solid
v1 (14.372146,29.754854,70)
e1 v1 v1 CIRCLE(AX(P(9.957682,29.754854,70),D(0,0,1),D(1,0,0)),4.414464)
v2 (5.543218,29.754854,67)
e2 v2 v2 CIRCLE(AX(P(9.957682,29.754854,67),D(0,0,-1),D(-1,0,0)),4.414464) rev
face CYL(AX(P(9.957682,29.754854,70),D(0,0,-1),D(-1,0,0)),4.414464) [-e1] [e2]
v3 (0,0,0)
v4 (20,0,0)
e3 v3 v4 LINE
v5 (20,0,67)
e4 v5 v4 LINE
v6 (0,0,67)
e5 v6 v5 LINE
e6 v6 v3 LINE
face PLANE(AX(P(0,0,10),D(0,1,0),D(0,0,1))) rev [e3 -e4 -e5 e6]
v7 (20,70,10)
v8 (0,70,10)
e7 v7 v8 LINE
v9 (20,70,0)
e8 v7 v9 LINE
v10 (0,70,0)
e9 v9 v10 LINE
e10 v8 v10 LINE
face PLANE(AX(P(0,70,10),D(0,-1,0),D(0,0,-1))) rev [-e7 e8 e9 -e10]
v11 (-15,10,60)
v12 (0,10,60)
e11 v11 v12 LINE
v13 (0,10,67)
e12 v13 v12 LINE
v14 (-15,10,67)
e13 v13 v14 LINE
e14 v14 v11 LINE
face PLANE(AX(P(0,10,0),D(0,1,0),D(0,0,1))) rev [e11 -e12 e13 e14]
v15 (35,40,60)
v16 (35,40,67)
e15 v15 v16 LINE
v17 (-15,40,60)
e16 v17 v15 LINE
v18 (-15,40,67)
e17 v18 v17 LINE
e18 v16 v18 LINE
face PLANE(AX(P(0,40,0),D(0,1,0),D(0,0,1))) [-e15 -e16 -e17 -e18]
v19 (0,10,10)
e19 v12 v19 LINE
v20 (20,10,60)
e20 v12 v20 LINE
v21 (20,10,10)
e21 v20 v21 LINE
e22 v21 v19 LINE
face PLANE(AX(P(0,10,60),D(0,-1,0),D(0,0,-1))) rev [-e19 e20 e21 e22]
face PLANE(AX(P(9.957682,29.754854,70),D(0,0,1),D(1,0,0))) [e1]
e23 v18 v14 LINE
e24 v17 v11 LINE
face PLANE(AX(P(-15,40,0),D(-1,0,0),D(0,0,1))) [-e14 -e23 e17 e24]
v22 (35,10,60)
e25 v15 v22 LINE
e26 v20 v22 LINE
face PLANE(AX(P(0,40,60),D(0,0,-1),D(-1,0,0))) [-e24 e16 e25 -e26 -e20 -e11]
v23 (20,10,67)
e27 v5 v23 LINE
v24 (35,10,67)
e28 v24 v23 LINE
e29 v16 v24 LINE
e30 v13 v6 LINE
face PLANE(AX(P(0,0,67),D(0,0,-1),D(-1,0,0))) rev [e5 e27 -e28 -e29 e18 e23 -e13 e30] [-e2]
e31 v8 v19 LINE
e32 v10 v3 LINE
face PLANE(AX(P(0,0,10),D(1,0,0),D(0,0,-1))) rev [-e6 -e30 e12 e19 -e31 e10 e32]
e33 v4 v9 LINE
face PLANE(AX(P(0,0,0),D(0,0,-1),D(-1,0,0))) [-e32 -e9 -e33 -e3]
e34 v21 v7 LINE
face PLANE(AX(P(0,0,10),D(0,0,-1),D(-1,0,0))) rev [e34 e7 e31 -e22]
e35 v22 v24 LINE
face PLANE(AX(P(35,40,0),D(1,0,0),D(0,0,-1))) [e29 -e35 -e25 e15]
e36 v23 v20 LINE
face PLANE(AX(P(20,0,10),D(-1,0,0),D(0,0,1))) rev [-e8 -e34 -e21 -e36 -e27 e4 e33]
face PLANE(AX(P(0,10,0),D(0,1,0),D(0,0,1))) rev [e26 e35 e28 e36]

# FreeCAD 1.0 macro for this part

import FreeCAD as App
import Part
import Sketcher
Q = App.Units.Quantity

doc = App.newDocument("Part")
body = doc.addObject("PartDesign::Body", "Body")

# Sketch on XY plane
sketch1 = body.newObject("Sketcher::SketchObject", "Sketch")
sketch1.AttachmentSupport = (doc.getObject("XY_Plane"), [""])
sketch1.MapMode = "FlatFace"
sketch1.addGeometry([
    Part.LineSegment(App.Vector(0, 70, 0), App.Vector(0, 0, 0)),
    Part.LineSegment(App.Vector(0, 0, 0), App.Vector(20, 0, 0)),
    Part.LineSegment(App.Vector(20, 0, 0), App.Vector(20, 70, 0)),
    Part.LineSegment(App.Vector(20, 70, 0), App.Vector(0, 70, 0)),
], False)
sketch1.addConstraint([
    Sketcher.Constraint("Coincident", 0, 2, 1, 1),
    Sketcher.Constraint("Coincident", 1, 2, 2, 1),
    Sketcher.Constraint("Coincident", 2, 2, 3, 1),
    Sketcher.Constraint("Coincident", 3, 2, 0, 1),
    Sketcher.Constraint("Vertical", 0),
    Sketcher.Constraint("Horizontal", 1),
    Sketcher.Constraint("Vertical", 2),
    Sketcher.Constraint("Horizontal", 3),
    Sketcher.Constraint("Coincident", 0, 2, -1, 1),
    Sketcher.Constraint("DistanceX", 1, 1, 1, 2, Q("20 mm")),
    Sketcher.Constraint("DistanceY", 0, 2, 0, 1, Q("70 mm")),
])
pad1 = body.newObject("PartDesign::Pad", "Pad")
pad1.Profile = sketch1
pad1.Length = 10

# Sketch on XY plane
sketch2 = body.newObject("Sketcher::SketchObject", "Sketch001")
sketch2.AttachmentSupport = (doc.getObject("XY_Plane"), [""])
sketch2.MapMode = "FlatFace"
sketch2.AttachmentOffset = App.Placement(App.Vector(0, 0, 10), App.Rotation())
sketch2.addGeometry([
    Part.LineSegment(App.Vector(0, 10, 0), App.Vector(0, 0, 0)),
    Part.LineSegment(App.Vector(0, 0, 0), App.Vector(20, 0, 0)),
    Part.LineSegment(App.Vector(20, 0, 0), App.Vector(20, 10, 0)),
    Part.LineSegment(App.Vector(20, 10, 0), App.Vector(0, 10, 0)),
], False)
sketch2.addConstraint([
    Sketcher.Constraint("Coincident", 0, 2, 1, 1),
    Sketcher.Constraint("Coincident", 1, 2, 2, 1),
    Sketcher.Constraint("Coincident", 2, 2, 3, 1),
    Sketcher.Constraint("Coincident", 3, 2, 0, 1),
    Sketcher.Constraint("Vertical", 0),
    Sketcher.Constraint("Horizontal", 1),
    Sketcher.Constraint("Vertical", 2),
    Sketcher.Constraint("Horizontal", 3),
    Sketcher.Constraint("Coincident", 0, 2, -1, 1),
    Sketcher.Constraint("DistanceX", 1, 1, 1, 2, Q("20 mm")),
    Sketcher.Constraint("DistanceY", 0, 2, 0, 1, Q("10 mm")),
])
pad2 = body.newObject("PartDesign::Pad", "Pad001")
pad2.Profile = sketch2
pad2.Length = 50

# Sketch on XY plane
sketch3 = body.newObject("Sketcher::SketchObject", "Sketch002")
sketch3.AttachmentSupport = (doc.getObject("XY_Plane"), [""])
sketch3.MapMode = "FlatFace"
sketch3.AttachmentOffset = App.Placement(App.Vector(0, 0, 60), App.Rotation())
sketch3.addGeometry([
    Part.LineSegment(App.Vector(0, 10, 0), App.Vector(0, 0, 0)),
    Part.LineSegment(App.Vector(0, 0, 0), App.Vector(20, 0, 0)),
    Part.LineSegment(App.Vector(20, 0, 0), App.Vector(20, 10, 0)),
    Part.LineSegment(App.Vector(20, 10, 0), App.Vector(0, 10, 0)),
], False)
sketch3.addConstraint([
    Sketcher.Constraint("Coincident", 0, 2, 1, 1),
    Sketcher.Constraint("Coincident", 1, 2, 2, 1),
    Sketcher.Constraint("Coincident", 2, 2, 3, 1),
    Sketcher.Constraint("Coincident", 3, 2, 0, 1),
    Sketcher.Constraint("Vertical", 0),
    Sketcher.Constraint("Horizontal", 1),
    Sketcher.Constraint("Vertical", 2),
    Sketcher.Constraint("Horizontal", 3),
    Sketcher.Constraint("Coincident", 0, 2, -1, 1),
    Sketcher.Constraint("DistanceX", 1, 1, 1, 2, Q("20 mm")),
    Sketcher.Constraint("DistanceY", 0, 2, 0, 1, Q("10 mm")),
])
pad3 = body.newObject("PartDesign::Pad", "Pad002")
pad3.Profile = sketch3
pad3.Length = 7

# Sketch on XZ plane
sketch4 = body.newObject("Sketcher::SketchObject", "Sketch003")
sketch4.AttachmentSupport = (doc.getObject("XZ_Plane"), [""])
sketch4.MapMode = "FlatFace"
sketch4.AttachmentOffset = App.Placement(App.Vector(0, 0, -10), App.Rotation())
sketch4.addGeometry([
    Part.LineSegment(App.Vector(-15, 60, 0), App.Vector(-15, 67, 0)),
    Part.LineSegment(App.Vector(-15, 67, 0), App.Vector(35, 67, 0)),
    Part.LineSegment(App.Vector(35, 67, 0), App.Vector(35, 60, 0)),
    Part.LineSegment(App.Vector(35, 60, 0), App.Vector(-15, 60, 0)),
], False)
sketch4.addConstraint([
    Sketcher.Constraint("Coincident", 0, 2, 1, 1),
    Sketcher.Constraint("Coincident", 1, 2, 2, 1),
    Sketcher.Constraint("Coincident", 2, 2, 3, 1),
    Sketcher.Constraint("Coincident", 3, 2, 0, 1),
    Sketcher.Constraint("Vertical", 0),
    Sketcher.Constraint("Horizontal", 1),
    Sketcher.Constraint("Vertical", 2),
    Sketcher.Constraint("Horizontal", 3),
    Sketcher.Constraint("DistanceX", 1, 1, 1, 2, Q("50 mm")),
    Sketcher.Constraint("DistanceY", 0, 1, 0, 2, Q("7 mm")),
    Sketcher.Constraint("DistanceX", 0, 2, -1, 1, Q("15 mm")),
    Sketcher.Constraint("DistanceY", -1, 1, 0, 2, Q("67 mm")),
])
pad4 = body.newObject("PartDesign::Pad", "Pad003")
pad4.Profile = sketch4
pad4.Length = 30
pad4.Reversed = True

# Sketch on XY plane
sketch5 = body.newObject("Sketcher::SketchObject", "Sketch004")
sketch5.AttachmentSupport = (doc.getObject("XY_Plane"), [""])
sketch5.MapMode = "FlatFace"
sketch5.AttachmentOffset = App.Placement(App.Vector(0, 0, 67), App.Rotation())
sketch5.addGeometry(Part.Circle(App.Vector(10, 29.8, 0), App.Vector(0, 0, 1), 4.4), False)
sketch5.addConstraint([
    Sketcher.Constraint("Diameter", 0, Q("8.828928 mm")),
    Sketcher.Constraint("DistanceX", -1, 1, 0, 3, Q("9.957682 mm")),
    Sketcher.Constraint("DistanceY", -1, 1, 0, 3, Q("29.754854 mm")),
])
pad5 = body.newObject("PartDesign::Pad", "Pad004")
pad5.Profile = sketch5
pad5.Length = 3

doc.recompute()
